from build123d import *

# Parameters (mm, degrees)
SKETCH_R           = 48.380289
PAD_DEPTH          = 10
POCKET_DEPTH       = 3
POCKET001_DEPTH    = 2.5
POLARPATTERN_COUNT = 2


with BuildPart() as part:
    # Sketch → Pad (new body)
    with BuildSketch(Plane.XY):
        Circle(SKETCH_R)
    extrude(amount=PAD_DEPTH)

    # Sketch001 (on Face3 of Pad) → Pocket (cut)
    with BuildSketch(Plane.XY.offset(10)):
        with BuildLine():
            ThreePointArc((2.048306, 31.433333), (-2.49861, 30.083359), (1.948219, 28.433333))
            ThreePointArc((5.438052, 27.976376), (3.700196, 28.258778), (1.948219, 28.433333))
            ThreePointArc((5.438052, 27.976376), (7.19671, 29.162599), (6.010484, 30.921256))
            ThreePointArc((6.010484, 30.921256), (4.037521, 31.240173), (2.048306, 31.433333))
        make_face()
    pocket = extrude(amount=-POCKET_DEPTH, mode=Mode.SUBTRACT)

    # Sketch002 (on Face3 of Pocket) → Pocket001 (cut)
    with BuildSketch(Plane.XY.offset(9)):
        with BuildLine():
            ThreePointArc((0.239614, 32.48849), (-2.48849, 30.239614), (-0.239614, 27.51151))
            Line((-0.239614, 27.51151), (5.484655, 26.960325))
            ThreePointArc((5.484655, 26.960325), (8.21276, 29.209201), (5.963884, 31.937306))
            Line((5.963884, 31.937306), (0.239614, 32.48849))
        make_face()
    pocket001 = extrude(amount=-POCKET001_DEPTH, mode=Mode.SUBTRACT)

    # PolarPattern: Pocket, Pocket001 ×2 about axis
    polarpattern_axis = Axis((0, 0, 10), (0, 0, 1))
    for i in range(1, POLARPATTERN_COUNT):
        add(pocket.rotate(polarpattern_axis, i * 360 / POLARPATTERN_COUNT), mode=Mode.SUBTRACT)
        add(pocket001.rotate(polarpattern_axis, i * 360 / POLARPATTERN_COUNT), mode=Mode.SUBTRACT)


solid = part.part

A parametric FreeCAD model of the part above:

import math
import FreeCAD as App
import Part
import Sketcher
Q = App.Units.Quantity

doc = App.newDocument("Part")
body = doc.addObject("PartDesign::Body", "Body")

# Sketch on XY plane
sketch1 = body.newObject("Sketcher::SketchObject", "Sketch")
sketch1.AttachmentSupport = (doc.getObject("XY_Plane"), [""])
sketch1.MapMode = "FlatFace"
sketch1.addGeometry(Part.Circle(App.Vector(0, 0, 0), App.Vector(0, 0, 1), 48), False)
sketch1.addConstraint(Sketcher.Constraint("Coincident", 0, 3, -1, 1))
sketch1.addConstraint(Sketcher.Constraint("Diameter", 0, Q("96.760578 mm")))
pad1 = body.newObject("PartDesign::Pad", "Pad")
pad1.Profile = sketch1
pad1.Length = 10

# Sketch on XY plane
sketch2 = body.newObject("Sketcher::SketchObject", "Sketch001")
sketch2.AttachmentSupport = (doc.getObject("XY_Plane"), [""])
sketch2.MapMode = "FlatFace"
sketch2.AttachmentOffset = App.Placement(App.Vector(0, 0, 10), App.Rotation())
sketch2.addGeometry(Part.ArcOfCircle(Part.Circle(App.Vector(0, 30, 0), App.Vector(0, 0, 1), 2.5), math.radians(35), math.radians(321)), False)
sketch2.addGeometry(Part.ArcOfCircle(Part.Circle(App.Vector(0, 0, 0), App.Vector(0, 0, 1), 28.5), math.radians(79), math.radians(86.08)), False)
sketch2.addGeometry(Part.ArcOfCircle(Part.Circle(App.Vector(5.7, 29.4, 0), App.Vector(0, 0, 1), 1.5), math.radians(-101), math.radians(79)), False)
sketch2.addGeometry(Part.ArcOfCircle(Part.Circle(App.Vector(0, 0, 0), App.Vector(0, 0, 1), 31.5), math.radians(79), math.radians(86.27)), False)
sketch2.addConstraint(Sketcher.Constraint("Coincident", 0, 2, 1, 2))
sketch2.addConstraint(Sketcher.Constraint("Coincident", 1, 1, 2, 1))
sketch2.addConstraint(Sketcher.Constraint("Tangent", 2, 2, 3, 1))
sketch2.addConstraint(Sketcher.Constraint("Coincident", 3, 2, 0, 1))
sketch2.addConstraint(Sketcher.Constraint("Coincident", 3, 3, -1, 1))
sketch2.addConstraint(Sketcher.Constraint("PointOnObject", 0, 3, -2))
sketch2.addConstraint(Sketcher.Constraint("Radius", 0, Q("2.5 mm")))
sketch2.addConstraint(Sketcher.Constraint("Radius", 2, Q("1.5 mm")))
sketch2.addConstraint(Sketcher.Constraint("DistanceY", -1, 1, 0, 3, Q("30 mm")))
sketch2.addConstraint(Sketcher.Constraint("DistanceY", 0, 2, 3, 2, Q("3 mm")))
sketch2.addConstraint(Sketcher.Constraint("Radius", 1, Q("28.500172 mm")))
sketch2.addConstraint(Sketcher.Constraint("Radius", 3, Q("31.500006 mm")))
sketch2.addConstraint(Sketcher.Constraint("DistanceX", -1, 1, 2, 3, Q("5.72427 mm")))
sketch2.addConstraint(Sketcher.Constraint("DistanceX", 1, 1, 2, 3, Q("0.286218 mm")))
pocket1 = body.newObject("PartDesign::Pocket", "Pocket")
pocket1.Profile = sketch2
pocket1.Length = 3

# Sketch on XY plane
sketch3 = body.newObject("Sketcher::SketchObject", "Sketch002")
sketch3.AttachmentSupport = (doc.getObject("XY_Plane"), [""])
sketch3.MapMode = "FlatFace"
sketch3.AttachmentOffset = App.Placement(App.Vector(0, 0, 9), App.Rotation())
sketch3.addGeometry(Part.ArcOfCircle(Part.Circle(App.Vector(0, 30, 0), App.Vector(0, 0, 1), 2.5), math.radians(85), math.radians(265)), False)
sketch3.addGeometry(Part.LineSegment(App.Vector(-0.2, 27.5, 0), App.Vector(5.5, 27, 0)), False)
sketch3.addGeometry(Part.ArcOfCircle(Part.Circle(App.Vector(5.7, 29.4, 0), App.Vector(0, 0, 1), 2.5), math.radians(-96), math.radians(84)), False)
sketch3.addGeometry(Part.LineSegment(App.Vector(6, 31.9, 0), App.Vector(0.2, 32.5, 0)), False)
sketch3.addConstraint(Sketcher.Constraint("Tangent", 0, 2, 1, 1))
sketch3.addConstraint(Sketcher.Constraint("Tangent", 1, 2, 2, 1))
sketch3.addConstraint(Sketcher.Constraint("Tangent", 2, 2, 3, 1))
sketch3.addConstraint(Sketcher.Constraint("Tangent", 3, 2, 0, 1))
sketch3.addConstraint(Sketcher.Constraint("Equal", 0, 2))
sketch3.addConstraint(Sketcher.Constraint("PointOnObject", 0, 3, -2))
sketch3.addConstraint(Sketcher.Constraint("Radius", 0, Q("2.499999 mm")))
sketch3.addConstraint(Sketcher.Constraint("DistanceY", -1, 1, 0, 3, Q("30 mm")))
sketch3.addConstraint(Sketcher.Constraint("Angle", 1, Q("-5.500006 deg")))
sketch3.addConstraint(Sketcher.Constraint("DistanceX", -1, 1, 2, 3, Q("5.72427 mm")))
pocket2 = body.newObject("PartDesign::Pocket", "Pocket001")
pocket2.Profile = sketch3
pocket2.Length = 2.5
doc.recompute()

polarpattern = body.newObject("PartDesign::PolarPattern", "PolarPattern")
polarpattern.Originals = [pocket1, pocket2]
polarpattern.Axis = (doc.getObject("Z_Axis"), [""])
polarpattern.Angle = 360
polarpattern.Occurrences = 2
body.Tip = polarpattern

doc.recompute()
